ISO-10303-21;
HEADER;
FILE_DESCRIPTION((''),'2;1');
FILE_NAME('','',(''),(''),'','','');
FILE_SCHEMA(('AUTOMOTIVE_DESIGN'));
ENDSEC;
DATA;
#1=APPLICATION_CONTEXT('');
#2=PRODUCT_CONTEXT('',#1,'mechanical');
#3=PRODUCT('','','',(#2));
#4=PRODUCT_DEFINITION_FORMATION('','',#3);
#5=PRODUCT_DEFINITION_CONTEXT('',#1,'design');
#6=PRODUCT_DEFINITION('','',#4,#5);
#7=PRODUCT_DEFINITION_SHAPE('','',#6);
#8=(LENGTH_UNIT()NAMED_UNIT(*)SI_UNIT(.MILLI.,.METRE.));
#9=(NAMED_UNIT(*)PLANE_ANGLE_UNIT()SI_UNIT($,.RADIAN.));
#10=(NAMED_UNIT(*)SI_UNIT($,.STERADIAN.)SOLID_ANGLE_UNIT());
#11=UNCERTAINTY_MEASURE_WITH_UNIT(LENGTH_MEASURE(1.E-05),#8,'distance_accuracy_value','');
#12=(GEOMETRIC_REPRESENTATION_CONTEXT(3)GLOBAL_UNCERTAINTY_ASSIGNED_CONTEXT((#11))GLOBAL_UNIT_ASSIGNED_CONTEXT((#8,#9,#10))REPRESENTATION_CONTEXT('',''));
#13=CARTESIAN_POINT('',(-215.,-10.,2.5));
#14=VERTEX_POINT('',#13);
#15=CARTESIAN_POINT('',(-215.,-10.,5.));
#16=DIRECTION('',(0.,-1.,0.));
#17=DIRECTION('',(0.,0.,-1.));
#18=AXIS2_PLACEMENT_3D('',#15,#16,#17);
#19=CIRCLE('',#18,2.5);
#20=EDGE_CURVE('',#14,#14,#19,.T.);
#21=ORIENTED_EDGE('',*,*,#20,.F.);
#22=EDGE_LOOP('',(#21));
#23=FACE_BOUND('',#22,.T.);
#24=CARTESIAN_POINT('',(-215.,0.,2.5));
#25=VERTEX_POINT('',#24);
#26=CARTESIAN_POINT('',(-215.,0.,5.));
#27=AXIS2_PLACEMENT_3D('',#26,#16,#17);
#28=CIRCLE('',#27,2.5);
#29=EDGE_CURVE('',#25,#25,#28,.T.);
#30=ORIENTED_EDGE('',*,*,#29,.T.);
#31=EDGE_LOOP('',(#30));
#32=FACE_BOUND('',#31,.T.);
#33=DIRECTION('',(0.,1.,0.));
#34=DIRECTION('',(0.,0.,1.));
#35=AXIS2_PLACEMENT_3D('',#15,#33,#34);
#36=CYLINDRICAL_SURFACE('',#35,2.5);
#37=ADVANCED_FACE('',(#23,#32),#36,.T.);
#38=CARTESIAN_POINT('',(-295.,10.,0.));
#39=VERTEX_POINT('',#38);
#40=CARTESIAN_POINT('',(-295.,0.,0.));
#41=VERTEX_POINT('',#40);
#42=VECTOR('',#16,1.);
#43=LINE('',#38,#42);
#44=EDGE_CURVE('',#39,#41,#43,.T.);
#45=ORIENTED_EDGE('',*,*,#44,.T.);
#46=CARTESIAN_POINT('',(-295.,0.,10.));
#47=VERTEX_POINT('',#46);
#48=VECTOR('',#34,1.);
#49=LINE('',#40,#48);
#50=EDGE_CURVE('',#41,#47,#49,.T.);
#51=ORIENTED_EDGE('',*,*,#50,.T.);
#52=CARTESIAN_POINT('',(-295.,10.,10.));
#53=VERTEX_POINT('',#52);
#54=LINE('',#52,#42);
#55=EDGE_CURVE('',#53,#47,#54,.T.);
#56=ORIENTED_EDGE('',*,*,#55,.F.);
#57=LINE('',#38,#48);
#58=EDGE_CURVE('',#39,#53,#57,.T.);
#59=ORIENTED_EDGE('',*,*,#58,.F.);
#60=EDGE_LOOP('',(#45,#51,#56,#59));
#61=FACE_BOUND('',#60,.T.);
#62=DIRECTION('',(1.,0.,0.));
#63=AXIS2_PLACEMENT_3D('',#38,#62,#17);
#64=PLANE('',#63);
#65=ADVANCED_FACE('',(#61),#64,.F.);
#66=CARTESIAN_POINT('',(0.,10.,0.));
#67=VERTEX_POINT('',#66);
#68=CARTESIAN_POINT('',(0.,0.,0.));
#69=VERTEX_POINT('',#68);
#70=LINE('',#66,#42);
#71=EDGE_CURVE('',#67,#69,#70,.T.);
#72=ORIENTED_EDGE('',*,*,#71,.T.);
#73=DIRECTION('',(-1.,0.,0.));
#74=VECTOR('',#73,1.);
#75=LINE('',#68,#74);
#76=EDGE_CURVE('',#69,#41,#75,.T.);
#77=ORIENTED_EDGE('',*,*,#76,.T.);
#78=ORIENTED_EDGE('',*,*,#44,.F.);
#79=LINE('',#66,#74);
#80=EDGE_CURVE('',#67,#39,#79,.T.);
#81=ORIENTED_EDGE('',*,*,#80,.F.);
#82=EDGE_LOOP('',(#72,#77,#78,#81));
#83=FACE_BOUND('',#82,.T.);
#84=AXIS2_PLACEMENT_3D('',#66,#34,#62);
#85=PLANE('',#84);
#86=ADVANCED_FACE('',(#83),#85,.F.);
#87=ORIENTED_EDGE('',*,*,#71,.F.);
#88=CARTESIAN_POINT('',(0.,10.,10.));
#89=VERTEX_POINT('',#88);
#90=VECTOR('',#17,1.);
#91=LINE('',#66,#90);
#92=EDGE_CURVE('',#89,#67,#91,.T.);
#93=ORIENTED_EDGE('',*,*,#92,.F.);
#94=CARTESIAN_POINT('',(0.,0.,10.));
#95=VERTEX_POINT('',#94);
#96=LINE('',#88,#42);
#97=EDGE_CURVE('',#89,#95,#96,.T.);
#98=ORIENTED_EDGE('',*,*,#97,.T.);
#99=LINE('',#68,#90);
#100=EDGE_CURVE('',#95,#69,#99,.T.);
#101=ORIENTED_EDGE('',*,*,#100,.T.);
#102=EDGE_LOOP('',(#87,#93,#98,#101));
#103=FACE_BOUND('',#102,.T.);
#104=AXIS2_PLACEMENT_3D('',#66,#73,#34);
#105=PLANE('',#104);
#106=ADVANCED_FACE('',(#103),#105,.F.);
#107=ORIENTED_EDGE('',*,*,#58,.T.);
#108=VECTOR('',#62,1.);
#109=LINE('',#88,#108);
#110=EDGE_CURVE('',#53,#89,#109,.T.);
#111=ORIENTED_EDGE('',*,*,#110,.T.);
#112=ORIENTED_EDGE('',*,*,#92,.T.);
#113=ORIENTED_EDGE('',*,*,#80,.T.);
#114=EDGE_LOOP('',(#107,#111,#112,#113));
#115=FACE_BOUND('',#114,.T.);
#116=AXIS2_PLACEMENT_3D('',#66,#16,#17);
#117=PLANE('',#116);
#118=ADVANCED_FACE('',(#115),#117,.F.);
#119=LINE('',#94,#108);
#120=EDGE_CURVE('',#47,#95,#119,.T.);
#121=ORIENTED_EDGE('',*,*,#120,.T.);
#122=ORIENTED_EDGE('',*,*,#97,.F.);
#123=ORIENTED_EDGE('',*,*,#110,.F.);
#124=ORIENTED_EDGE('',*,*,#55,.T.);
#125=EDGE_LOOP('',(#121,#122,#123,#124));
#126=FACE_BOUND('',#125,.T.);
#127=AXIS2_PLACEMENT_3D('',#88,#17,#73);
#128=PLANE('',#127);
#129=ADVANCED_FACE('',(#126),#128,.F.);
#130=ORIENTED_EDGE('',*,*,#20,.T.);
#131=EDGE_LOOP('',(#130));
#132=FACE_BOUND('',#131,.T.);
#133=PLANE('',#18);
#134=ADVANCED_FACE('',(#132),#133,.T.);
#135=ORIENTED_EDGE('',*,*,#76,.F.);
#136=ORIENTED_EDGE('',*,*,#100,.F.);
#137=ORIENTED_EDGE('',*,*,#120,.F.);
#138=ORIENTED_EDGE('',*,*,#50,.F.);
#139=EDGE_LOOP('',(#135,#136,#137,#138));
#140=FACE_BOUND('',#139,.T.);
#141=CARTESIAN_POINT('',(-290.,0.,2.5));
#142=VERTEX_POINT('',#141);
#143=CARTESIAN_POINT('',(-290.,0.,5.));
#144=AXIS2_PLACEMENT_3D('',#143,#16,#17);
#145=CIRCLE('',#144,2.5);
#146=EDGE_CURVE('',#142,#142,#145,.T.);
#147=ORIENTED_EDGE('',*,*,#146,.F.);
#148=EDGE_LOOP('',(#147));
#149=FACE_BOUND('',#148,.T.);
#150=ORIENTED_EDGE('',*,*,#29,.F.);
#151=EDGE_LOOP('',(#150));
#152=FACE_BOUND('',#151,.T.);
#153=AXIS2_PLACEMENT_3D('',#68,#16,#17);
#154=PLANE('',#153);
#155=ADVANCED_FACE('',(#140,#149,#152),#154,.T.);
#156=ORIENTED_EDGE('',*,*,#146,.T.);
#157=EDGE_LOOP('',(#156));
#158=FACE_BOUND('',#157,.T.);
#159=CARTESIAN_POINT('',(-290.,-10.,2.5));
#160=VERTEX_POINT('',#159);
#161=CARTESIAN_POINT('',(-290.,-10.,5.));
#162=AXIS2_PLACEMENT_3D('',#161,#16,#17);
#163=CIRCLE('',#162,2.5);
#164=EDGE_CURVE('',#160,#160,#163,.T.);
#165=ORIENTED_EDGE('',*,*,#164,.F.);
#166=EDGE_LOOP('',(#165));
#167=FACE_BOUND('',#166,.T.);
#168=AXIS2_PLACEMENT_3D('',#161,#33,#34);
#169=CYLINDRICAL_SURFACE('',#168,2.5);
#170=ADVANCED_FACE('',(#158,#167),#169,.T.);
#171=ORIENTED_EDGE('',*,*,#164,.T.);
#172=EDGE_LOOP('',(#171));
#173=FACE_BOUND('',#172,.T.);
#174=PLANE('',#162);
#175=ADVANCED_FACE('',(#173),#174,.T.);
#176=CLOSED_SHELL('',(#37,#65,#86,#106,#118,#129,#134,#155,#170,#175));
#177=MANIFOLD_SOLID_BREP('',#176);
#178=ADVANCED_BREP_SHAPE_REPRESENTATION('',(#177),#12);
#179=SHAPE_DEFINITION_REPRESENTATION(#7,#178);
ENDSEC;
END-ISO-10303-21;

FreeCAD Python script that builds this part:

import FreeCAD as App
import Part
import Sketcher

V = App.Vector

doc = App.newDocument("Part")
params = doc.addObject("Spreadsheet::Sheet", "Params")
for row, (alias, value) in enumerate([
    ("sketch1_width", "295 mm"),
    ("sketch1_height", "10 mm"),
    ("pad1_length", "10 mm"),
    ("sketch2_diameter", "5 mm"),
    ("pad2_length", "10 mm"),
], start=1):
    params.set(f"A{row}", alias)
    params.set(f"B{row}", "=" + value)
    params.setAlias(f"B{row}", alias)

body = doc.addObject("PartDesign::Body", "Body")

sketch1 = body.newObject("Sketcher::SketchObject", "Sketch")
sketch1.AttachmentSupport = (doc.getObject("XZ_Plane"), [""])
sketch1.MapMode = "FlatFace"
sketch1.addGeometry(Part.LineSegment(V(-295, 0, 0), V(-295, 10, 0)), False)
sketch1.addGeometry(Part.LineSegment(V(-295, 10, 0), V(0, 10, 0)), False)
sketch1.addGeometry(Part.LineSegment(V(0, 10, 0), V(0, 0, 0)), False)
sketch1.addGeometry(Part.LineSegment(V(0, 0, 0), V(-295, 0, 0)), False)
sketch1.addConstraint(Sketcher.Constraint("Coincident", 0, 2, 1, 1))
sketch1.addConstraint(Sketcher.Constraint("Coincident", 1, 2, 2, 1))
sketch1.addConstraint(Sketcher.Constraint("Coincident", 2, 2, 3, 1))
sketch1.addConstraint(Sketcher.Constraint("Coincident", 3, 2, 0, 1))
sketch1.addConstraint(Sketcher.Constraint("Vertical", 0))
sketch1.addConstraint(Sketcher.Constraint("Horizontal", 1))
sketch1.addConstraint(Sketcher.Constraint("Vertical", 2))
sketch1.addConstraint(Sketcher.Constraint("Horizontal", 3))
sketch1.addConstraint(Sketcher.Constraint("Coincident", 2, 2, -1, 1))
sketch1.addConstraint(Sketcher.Constraint("DistanceX", 1, 1, 1, 2, 295.0))
sketch1.addConstraint(Sketcher.Constraint("DistanceY", 0, 1, 0, 2, 10.0))
sketch1.setExpression("Constraints[9]", "Params.sketch1_width")
sketch1.setExpression("Constraints[10]", "Params.sketch1_height")
pad1 = body.newObject("PartDesign::Pad", "Pad")
pad1.Profile = sketch1
pad1.setExpression("Length", "Params.pad1_length")
pad1.Reversed = True

sketch2 = body.newObject("Sketcher::SketchObject", "Sketch001")
sketch2.AttachmentSupport = (doc.getObject("XZ_Plane"), [""])
sketch2.MapMode = "FlatFace"
sketch2.addGeometry(Part.Circle(V(-290, 5, 0), V(0, 0, 1), 2.5), False)
sketch2.addGeometry(Part.Circle(V(-215, 5, 0), V(0, 0, 1), 2.5), False)
sketch2.addConstraint(Sketcher.Constraint("Equal", 0, 1))
sketch2.addConstraint(Sketcher.Constraint("Horizontal", 0, 3, 1, 3))
sketch2.addConstraint(Sketcher.Constraint("Diameter", 0, 5.0))
sketch2.addConstraint(Sketcher.Constraint("DistanceX", 0, 3, -1, 1, 290.0))
sketch2.addConstraint(Sketcher.Constraint("DistanceY", -1, 1, 0, 3, 5.0))
sketch2.addConstraint(Sketcher.Constraint("DistanceX", 1, 3, -1, 1, 215.0))
sketch2.setExpression("Constraints[2]", "Params.sketch2_diameter")
pad2 = body.newObject("PartDesign::Pad", "Pad001")
pad2.Profile = sketch2
pad2.setExpression("Length", "Params.pad2_length")

doc.recompute()
